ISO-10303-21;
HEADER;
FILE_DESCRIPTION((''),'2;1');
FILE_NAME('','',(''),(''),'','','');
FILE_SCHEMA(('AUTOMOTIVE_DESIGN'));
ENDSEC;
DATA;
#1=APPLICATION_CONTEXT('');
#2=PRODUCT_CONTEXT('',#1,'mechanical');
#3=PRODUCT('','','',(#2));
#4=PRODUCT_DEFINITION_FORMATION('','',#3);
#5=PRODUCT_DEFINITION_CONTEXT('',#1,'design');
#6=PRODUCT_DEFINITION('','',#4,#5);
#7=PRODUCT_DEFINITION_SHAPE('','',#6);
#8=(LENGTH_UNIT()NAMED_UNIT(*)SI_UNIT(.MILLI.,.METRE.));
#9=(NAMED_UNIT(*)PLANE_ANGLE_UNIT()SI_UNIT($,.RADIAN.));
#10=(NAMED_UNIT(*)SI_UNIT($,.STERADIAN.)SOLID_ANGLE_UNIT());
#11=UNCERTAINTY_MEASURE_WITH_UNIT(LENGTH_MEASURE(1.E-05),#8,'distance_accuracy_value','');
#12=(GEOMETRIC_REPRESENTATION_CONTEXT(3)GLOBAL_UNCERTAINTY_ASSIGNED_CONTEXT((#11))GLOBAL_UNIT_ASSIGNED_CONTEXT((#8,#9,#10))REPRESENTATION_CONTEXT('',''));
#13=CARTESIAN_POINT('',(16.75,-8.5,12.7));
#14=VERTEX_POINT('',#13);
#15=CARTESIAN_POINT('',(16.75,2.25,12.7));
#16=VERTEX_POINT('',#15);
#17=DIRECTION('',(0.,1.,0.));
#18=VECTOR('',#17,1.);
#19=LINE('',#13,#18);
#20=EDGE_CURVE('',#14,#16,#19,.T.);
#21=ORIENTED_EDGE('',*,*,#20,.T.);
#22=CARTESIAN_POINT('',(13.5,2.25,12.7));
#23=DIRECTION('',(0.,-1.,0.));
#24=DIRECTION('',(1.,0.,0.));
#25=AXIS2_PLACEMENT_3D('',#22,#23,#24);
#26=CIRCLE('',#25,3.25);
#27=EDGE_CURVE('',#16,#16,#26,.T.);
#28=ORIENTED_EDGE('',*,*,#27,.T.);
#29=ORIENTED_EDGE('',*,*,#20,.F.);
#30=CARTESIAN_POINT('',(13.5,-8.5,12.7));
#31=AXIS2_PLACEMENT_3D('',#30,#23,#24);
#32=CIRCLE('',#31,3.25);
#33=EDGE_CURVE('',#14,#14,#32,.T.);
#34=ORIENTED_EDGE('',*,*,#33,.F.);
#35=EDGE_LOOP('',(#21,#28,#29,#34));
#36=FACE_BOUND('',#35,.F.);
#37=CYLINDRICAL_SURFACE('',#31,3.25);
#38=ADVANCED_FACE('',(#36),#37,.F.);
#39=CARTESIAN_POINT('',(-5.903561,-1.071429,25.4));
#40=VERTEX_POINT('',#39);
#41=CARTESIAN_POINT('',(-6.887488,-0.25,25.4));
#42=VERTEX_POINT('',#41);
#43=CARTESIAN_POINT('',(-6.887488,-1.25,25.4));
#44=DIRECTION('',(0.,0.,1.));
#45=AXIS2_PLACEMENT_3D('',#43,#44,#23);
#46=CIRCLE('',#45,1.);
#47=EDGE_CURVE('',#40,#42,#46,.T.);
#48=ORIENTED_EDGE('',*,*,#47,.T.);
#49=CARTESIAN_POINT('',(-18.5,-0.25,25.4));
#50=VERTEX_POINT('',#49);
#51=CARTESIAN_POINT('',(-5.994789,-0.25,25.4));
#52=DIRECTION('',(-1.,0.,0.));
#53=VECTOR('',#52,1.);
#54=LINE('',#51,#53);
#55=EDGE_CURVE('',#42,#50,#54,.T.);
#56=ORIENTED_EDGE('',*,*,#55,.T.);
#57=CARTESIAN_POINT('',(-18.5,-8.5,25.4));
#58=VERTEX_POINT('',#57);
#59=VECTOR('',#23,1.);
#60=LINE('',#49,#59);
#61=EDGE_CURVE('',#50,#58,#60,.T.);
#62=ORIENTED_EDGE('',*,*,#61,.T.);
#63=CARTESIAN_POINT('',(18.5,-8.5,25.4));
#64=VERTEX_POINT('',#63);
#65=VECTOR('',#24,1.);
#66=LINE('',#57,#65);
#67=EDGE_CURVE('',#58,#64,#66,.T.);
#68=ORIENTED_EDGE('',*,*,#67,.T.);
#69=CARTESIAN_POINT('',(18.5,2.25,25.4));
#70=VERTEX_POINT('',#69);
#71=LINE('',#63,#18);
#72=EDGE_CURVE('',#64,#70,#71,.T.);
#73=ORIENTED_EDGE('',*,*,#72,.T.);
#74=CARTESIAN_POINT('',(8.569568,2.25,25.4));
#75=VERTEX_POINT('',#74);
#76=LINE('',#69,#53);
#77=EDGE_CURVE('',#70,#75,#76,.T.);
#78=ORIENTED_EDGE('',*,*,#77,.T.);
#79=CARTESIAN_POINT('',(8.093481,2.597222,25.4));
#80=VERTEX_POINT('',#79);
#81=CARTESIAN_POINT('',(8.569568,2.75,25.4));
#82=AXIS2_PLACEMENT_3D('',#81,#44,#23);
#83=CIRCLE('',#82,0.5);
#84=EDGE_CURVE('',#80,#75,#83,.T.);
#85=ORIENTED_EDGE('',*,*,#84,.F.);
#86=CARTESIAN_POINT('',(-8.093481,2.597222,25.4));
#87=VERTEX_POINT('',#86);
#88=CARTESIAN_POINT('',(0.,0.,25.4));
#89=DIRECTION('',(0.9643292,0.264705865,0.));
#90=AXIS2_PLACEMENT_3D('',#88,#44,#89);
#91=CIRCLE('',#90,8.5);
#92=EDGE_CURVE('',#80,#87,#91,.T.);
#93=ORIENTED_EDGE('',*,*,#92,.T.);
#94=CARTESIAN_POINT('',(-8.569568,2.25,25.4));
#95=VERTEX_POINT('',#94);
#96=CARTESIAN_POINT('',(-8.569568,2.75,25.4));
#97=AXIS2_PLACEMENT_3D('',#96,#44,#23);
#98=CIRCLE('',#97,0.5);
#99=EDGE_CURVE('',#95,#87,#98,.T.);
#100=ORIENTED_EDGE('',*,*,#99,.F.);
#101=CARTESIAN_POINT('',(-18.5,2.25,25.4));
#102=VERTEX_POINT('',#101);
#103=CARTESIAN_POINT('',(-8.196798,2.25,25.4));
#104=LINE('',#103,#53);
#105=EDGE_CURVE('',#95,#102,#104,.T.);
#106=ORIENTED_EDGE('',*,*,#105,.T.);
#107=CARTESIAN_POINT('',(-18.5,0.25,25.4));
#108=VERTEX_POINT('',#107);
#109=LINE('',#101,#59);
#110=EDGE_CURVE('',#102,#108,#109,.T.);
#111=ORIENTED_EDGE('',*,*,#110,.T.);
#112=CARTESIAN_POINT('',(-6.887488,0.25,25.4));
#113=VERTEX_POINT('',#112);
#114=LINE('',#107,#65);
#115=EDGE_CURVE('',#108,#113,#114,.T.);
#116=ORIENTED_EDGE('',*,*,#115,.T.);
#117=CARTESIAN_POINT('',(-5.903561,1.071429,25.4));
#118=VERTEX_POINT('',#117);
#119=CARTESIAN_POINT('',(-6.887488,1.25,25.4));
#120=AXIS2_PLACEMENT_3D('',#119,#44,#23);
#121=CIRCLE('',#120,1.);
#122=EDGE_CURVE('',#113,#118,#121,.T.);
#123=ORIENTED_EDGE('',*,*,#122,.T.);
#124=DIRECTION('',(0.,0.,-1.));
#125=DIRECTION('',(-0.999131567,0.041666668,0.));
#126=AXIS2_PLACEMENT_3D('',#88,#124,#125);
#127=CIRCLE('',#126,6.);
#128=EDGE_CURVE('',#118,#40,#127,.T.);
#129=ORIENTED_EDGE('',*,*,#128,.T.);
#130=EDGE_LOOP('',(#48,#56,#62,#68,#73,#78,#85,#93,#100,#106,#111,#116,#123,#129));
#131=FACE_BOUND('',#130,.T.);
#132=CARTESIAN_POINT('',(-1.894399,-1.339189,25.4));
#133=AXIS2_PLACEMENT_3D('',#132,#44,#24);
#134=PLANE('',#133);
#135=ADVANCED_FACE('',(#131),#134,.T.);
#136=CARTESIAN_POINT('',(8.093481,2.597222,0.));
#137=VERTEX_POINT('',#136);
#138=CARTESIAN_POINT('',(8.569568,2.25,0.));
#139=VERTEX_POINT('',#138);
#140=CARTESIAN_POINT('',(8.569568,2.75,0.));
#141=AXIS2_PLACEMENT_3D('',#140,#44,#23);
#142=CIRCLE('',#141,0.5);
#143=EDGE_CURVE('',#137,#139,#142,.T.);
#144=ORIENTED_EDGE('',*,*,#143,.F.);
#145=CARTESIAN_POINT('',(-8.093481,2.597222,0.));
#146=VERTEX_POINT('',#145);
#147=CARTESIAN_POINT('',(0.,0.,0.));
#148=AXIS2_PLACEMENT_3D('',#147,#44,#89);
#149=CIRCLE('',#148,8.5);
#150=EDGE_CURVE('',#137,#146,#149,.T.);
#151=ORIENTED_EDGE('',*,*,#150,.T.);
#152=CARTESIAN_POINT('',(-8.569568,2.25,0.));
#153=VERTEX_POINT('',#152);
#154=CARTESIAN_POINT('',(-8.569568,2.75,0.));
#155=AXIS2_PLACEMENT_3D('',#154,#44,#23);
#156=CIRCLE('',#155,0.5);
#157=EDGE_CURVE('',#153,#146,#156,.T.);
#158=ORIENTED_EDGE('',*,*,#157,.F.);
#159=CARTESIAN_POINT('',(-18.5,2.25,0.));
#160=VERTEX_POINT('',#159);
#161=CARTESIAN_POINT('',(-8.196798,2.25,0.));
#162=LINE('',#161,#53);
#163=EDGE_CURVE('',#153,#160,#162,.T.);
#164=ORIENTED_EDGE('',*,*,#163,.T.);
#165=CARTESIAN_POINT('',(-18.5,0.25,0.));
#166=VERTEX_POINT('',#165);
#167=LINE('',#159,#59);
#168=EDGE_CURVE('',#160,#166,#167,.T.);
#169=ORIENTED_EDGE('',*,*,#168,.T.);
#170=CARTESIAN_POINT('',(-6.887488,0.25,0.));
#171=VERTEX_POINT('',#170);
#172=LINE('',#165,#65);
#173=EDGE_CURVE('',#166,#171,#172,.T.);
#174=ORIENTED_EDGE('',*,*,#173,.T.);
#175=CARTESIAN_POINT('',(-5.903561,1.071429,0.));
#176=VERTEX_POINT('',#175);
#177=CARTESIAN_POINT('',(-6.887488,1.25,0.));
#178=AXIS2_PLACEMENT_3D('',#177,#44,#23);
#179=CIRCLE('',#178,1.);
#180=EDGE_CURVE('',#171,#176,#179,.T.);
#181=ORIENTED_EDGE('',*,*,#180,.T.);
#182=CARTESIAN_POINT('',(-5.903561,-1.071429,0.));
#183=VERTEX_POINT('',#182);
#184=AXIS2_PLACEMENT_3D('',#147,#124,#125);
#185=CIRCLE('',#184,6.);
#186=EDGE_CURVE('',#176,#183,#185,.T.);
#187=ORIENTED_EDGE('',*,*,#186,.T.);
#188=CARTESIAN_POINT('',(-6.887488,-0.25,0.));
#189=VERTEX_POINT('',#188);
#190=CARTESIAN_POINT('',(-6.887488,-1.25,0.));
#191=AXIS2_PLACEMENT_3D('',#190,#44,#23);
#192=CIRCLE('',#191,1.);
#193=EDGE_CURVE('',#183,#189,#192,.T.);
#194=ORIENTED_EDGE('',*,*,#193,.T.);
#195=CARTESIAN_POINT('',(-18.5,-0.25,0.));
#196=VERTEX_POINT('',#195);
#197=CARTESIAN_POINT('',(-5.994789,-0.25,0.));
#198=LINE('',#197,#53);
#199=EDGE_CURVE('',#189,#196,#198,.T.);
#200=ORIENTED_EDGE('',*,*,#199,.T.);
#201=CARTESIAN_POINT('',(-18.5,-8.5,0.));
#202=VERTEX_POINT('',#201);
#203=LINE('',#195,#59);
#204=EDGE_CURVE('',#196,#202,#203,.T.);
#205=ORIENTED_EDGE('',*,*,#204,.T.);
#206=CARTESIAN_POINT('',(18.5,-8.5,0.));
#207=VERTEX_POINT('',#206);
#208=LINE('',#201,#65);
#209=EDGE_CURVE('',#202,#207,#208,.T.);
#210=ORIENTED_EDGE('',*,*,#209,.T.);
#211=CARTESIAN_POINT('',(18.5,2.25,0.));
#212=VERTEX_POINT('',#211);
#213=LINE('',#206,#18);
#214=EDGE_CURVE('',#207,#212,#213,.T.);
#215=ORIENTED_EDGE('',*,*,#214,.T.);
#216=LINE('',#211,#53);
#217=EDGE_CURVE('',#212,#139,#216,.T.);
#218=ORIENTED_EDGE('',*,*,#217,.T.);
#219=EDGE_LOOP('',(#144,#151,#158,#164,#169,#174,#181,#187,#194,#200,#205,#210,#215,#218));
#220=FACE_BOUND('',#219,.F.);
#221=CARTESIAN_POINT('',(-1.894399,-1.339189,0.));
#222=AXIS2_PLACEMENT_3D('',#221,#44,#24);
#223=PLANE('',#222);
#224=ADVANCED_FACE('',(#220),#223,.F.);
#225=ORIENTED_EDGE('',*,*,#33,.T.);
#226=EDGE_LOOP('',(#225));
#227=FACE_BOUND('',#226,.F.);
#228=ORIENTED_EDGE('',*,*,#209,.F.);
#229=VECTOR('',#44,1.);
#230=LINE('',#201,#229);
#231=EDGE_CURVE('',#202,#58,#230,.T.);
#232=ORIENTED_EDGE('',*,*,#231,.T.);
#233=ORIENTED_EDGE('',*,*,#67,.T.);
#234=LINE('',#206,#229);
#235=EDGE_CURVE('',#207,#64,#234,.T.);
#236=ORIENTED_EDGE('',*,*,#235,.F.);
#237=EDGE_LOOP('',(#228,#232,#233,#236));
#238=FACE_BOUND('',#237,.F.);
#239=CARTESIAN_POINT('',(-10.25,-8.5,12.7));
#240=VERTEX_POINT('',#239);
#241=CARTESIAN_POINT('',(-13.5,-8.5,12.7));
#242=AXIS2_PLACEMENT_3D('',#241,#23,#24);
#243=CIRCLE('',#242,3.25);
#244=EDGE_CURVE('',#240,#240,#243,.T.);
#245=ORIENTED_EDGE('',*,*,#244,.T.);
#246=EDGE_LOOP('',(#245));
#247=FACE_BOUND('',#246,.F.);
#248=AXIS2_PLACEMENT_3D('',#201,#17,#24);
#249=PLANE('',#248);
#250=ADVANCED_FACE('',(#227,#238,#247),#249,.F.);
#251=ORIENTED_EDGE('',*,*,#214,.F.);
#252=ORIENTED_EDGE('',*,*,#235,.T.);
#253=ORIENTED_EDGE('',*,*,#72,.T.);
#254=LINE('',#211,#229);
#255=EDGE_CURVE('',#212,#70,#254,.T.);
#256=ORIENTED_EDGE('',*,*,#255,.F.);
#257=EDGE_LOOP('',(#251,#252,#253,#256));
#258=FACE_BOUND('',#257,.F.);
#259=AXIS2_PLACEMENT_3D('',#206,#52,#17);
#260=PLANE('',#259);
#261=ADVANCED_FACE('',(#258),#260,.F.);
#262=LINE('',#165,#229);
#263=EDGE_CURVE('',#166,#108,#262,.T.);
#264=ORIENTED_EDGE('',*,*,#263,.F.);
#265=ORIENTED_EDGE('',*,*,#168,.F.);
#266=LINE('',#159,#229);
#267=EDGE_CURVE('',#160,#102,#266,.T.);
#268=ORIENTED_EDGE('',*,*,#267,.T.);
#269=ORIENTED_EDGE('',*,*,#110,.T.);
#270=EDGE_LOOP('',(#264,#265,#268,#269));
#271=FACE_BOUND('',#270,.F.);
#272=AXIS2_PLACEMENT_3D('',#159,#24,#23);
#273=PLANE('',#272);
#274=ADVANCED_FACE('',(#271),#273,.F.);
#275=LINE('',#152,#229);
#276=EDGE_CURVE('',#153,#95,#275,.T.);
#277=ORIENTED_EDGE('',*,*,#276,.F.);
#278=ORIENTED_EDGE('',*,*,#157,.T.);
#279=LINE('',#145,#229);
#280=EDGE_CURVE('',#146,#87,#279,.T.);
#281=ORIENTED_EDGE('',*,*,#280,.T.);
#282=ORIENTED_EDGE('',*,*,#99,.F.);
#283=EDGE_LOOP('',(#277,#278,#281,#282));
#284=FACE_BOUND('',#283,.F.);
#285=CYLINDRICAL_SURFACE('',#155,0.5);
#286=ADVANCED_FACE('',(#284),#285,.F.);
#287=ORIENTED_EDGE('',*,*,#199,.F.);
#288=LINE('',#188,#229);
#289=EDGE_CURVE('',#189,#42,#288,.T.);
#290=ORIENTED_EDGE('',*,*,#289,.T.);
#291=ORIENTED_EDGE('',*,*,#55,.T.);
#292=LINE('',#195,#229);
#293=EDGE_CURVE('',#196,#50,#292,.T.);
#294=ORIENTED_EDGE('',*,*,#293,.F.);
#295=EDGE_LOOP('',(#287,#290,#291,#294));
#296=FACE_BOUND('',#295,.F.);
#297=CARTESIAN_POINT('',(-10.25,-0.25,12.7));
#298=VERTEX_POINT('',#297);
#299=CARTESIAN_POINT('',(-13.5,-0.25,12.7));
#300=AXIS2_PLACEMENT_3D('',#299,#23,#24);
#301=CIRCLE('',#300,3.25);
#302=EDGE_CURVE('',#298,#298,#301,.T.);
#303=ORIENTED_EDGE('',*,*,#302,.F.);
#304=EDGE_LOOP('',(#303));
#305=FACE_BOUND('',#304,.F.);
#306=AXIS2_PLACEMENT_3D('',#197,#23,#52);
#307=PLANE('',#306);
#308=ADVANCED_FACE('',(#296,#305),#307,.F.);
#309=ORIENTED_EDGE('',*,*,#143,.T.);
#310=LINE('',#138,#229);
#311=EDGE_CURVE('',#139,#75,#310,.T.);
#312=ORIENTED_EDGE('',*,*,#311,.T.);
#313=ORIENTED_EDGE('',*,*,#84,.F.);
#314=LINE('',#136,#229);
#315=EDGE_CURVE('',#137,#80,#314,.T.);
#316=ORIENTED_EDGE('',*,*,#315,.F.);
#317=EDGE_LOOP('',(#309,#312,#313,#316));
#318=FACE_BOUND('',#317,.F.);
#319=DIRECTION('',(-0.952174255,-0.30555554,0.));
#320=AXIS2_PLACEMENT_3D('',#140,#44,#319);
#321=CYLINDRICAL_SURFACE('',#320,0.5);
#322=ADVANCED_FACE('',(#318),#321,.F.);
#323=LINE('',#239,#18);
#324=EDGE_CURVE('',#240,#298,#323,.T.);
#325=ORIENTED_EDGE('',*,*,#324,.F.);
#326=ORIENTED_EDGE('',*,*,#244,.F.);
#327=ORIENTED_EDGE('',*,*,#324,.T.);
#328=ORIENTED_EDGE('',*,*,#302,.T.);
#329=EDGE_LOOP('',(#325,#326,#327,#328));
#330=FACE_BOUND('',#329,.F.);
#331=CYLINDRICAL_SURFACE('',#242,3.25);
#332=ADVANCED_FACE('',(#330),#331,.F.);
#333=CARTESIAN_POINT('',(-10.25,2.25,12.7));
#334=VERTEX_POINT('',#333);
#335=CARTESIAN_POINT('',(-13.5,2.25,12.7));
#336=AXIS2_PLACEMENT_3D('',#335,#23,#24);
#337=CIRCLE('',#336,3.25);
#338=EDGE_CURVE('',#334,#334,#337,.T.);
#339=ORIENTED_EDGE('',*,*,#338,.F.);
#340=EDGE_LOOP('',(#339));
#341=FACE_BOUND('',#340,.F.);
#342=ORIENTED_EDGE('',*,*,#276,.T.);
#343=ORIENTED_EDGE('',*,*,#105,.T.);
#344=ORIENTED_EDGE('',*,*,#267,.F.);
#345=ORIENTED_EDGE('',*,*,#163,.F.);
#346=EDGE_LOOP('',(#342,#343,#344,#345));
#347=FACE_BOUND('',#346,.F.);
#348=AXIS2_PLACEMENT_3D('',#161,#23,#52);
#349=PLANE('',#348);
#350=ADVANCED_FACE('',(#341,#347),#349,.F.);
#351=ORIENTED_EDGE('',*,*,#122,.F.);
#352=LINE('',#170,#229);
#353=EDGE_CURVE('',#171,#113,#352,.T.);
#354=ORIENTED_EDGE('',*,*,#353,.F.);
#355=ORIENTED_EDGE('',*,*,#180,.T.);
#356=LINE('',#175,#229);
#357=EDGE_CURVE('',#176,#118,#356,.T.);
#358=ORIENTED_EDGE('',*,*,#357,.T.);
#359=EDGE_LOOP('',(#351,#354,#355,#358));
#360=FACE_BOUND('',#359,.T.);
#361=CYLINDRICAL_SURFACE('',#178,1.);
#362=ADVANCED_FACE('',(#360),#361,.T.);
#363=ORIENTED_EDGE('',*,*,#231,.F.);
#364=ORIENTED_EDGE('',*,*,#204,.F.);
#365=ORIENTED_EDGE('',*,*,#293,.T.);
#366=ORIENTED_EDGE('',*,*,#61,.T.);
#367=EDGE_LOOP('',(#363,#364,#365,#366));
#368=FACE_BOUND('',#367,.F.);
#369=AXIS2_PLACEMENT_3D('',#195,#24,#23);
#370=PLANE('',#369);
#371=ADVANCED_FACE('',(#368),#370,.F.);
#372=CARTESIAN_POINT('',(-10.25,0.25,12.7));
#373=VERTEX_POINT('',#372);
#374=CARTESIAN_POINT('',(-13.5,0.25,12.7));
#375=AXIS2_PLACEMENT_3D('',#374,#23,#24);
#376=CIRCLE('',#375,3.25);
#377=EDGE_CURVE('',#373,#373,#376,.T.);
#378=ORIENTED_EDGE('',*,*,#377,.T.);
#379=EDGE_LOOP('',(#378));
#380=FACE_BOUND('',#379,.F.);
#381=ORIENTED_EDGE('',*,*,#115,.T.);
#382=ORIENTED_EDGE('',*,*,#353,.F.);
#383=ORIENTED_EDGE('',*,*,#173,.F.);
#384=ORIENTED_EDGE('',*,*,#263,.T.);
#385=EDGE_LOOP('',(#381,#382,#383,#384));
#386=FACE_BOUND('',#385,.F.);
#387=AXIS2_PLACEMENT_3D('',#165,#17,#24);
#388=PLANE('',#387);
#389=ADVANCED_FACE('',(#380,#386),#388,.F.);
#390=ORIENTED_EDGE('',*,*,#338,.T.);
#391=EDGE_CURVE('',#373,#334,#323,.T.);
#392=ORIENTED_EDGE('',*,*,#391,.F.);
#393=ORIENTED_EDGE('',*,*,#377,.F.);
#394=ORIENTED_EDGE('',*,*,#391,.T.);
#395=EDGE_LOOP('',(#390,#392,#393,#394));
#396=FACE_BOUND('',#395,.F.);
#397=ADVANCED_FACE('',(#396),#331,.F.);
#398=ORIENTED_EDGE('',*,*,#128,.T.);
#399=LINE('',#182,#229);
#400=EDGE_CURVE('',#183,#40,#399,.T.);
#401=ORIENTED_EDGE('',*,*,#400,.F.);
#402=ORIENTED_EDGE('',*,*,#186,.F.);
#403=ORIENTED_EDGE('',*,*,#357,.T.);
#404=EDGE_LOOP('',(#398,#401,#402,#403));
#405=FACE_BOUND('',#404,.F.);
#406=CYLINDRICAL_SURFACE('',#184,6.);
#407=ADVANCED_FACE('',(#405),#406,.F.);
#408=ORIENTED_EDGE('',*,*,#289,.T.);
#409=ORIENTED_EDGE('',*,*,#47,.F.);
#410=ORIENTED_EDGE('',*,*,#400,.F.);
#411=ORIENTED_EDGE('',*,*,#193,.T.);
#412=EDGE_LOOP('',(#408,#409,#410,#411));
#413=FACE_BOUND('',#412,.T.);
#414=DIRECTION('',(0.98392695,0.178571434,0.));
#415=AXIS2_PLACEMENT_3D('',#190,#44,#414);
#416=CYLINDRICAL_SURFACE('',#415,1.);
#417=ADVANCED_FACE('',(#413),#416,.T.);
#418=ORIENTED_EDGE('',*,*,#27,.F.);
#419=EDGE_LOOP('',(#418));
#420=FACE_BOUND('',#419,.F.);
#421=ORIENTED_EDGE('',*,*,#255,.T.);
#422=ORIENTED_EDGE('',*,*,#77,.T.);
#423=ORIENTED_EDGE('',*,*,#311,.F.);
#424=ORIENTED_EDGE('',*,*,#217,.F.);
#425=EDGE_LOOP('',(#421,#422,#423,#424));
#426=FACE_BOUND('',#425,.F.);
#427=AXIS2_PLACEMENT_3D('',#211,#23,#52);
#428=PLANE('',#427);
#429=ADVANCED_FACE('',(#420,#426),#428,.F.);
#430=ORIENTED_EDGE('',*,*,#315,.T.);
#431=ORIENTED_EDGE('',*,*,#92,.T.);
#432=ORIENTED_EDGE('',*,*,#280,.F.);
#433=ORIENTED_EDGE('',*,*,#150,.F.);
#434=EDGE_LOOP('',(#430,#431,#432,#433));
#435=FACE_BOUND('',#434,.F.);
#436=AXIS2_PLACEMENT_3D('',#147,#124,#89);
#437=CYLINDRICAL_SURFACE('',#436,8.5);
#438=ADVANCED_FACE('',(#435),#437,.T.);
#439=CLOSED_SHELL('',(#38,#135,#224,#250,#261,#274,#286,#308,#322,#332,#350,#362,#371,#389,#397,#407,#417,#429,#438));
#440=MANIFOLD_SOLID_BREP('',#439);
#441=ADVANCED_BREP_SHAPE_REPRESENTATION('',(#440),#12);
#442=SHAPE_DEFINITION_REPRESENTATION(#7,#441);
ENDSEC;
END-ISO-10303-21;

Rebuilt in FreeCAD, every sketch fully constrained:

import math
import FreeCAD as App
import Part
import Sketcher
from FreeCAD import Vector
Q = App.Units.Quantity


def edges_at(feature, points):
    """Names of the edges that pass closest to the given points."""
    edges = feature.Shape.Edges
    near = lambda p: min(range(len(edges)), key=lambda i: edges[i].distToShape(Part.Vertex(*p))[0])
    return sorted({f"Edge{near(p) + 1}" for p in points})

doc = App.newDocument("Part")
params = doc.addObject("Spreadsheet::Sheet", "Params")
for row, (alias, value) in enumerate([
    ("sketch1_radius", "6 mm"),
    ("sketch1_radius2", "8.5 mm"),
    ("sketch1_width", "37 mm"),
    ("sketch1_height", "2 mm"),
    ("sketch1_height2", "8.25 mm"),
    ("pad1_length", "25.4 mm"),
    ("fillet_radius", "1 mm"),
    ("fillet2_radius", "0.5 mm"),
    ("sketch2_diameter", "6.5 mm"),
], start=1):
    params.set(f"A{row}", alias)
    params.set(f"B{row}", "=" + value)
    params.setAlias(f"B{row}", alias)

body = doc.addObject("PartDesign::Body", "Body")

# Sketch on XY plane
sketch1 = body.newObject("Sketcher::SketchObject", "Sketch")
sketch1.AttachmentSupport = (doc.getObject("XY_Plane"), [""])
sketch1.MapMode = "FlatFace"
sketch1.addGeometry(Part.LineSegment(Vector(-18.5, -0.25, 0), Vector(-18.5, -8.5, 0)), False)
sketch1.addGeometry(Part.LineSegment(Vector(-18.5, -8.5, 0), Vector(18.5, -8.5, 0)), False)
sketch1.addGeometry(Part.LineSegment(Vector(18.5, -8.5, 0), Vector(18.5, 2.25, 0)), False)
sketch1.addGeometry(Part.LineSegment(Vector(18.5, 2.25, 0), Vector(8.196798, 2.25, 0)), False)
sketch1.addGeometry(Part.ArcOfCircle(Part.Circle(Vector(0, 0, 0), Vector(0, 0, 1), 8.5), math.radians(15.349476), math.radians(164.650524)), False)
sketch1.addGeometry(Part.LineSegment(Vector(-8.196798, 2.25, 0), Vector(-18.5, 2.25, 0)), False)
sketch1.addGeometry(Part.LineSegment(Vector(-18.5, 2.25, 0), Vector(-18.5, 0.25, 0)), False)
sketch1.addGeometry(Part.LineSegment(Vector(-18.5, 0.25, 0), Vector(-5.994789, 0.25, 0)), False)
sketch1.addGeometry(Part.ArcOfCircle(Part.Circle(Vector(0, 0, 0), Vector(0, 0, 1), 6), math.radians(-177.611984), math.radians(177.611984)), False)
sketch1.addGeometry(Part.LineSegment(Vector(-5.994789, -0.25, 0), Vector(-18.5, -0.25, 0)), False)
sketch1.addConstraint(Sketcher.Constraint("Coincident", 0, 2, 1, 1))
sketch1.addConstraint(Sketcher.Constraint("Coincident", 1, 2, 2, 1))
sketch1.addConstraint(Sketcher.Constraint("Coincident", 2, 2, 3, 1))
sketch1.addConstraint(Sketcher.Constraint("Coincident", 3, 2, 4, 1))
sketch1.addConstraint(Sketcher.Constraint("Coincident", 4, 2, 5, 1))
sketch1.addConstraint(Sketcher.Constraint("Coincident", 5, 2, 6, 1))
sketch1.addConstraint(Sketcher.Constraint("Coincident", 6, 2, 7, 1))
sketch1.addConstraint(Sketcher.Constraint("Coincident", 7, 2, 8, 2))
sketch1.addConstraint(Sketcher.Constraint("Coincident", 8, 1, 9, 1))
sketch1.addConstraint(Sketcher.Constraint("Coincident", 9, 2, 0, 1))
sketch1.addConstraint(Sketcher.Constraint("Vertical", 0))
sketch1.addConstraint(Sketcher.Constraint("Horizontal", 1))
sketch1.addConstraint(Sketcher.Constraint("Vertical", 2))
sketch1.addConstraint(Sketcher.Constraint("Horizontal", 3))
sketch1.addConstraint(Sketcher.Constraint("Horizontal", 5))
sketch1.addConstraint(Sketcher.Constraint("Vertical", 6))
sketch1.addConstraint(Sketcher.Constraint("Horizontal", 7))
sketch1.addConstraint(Sketcher.Constraint("Horizontal", 9))
sketch1.addConstraint(Sketcher.Constraint("Coincident", 4, 3, -1, 1))
sketch1.addConstraint(Sketcher.Constraint("Coincident", 8, 3, -1, 1))
sketch1.addConstraint(Sketcher.Constraint("Symmetric", 2, 2, 5, 2, -2))
sketch1.addConstraint(Sketcher.Constraint("Symmetric", 6, 2, 9, 2, -1))
sketch1.addConstraint(Sketcher.Constraint("Radius", 8, Q("6 mm")))
sketch1.addConstraint(Sketcher.Constraint("Radius", 4, Q("8.5 mm")))
sketch1.addConstraint(Sketcher.Constraint("DistanceX", 1, 1, 1, 2, Q("37 mm")))
sketch1.addConstraint(Sketcher.Constraint("DistanceY", 6, 2, 6, 1, Q("2 mm")))
sketch1.addConstraint(Sketcher.Constraint("DistanceY", 0, 2, 0, 1, Q("8.25 mm")))
sketch1.addConstraint(Sketcher.Constraint("DistanceY", 2, 1, 2, 2, Q("10.75 mm")))
sketch1.setExpression("Constraints[22]", "Params.sketch1_radius")
sketch1.setExpression("Constraints[23]", "Params.sketch1_radius2")
sketch1.setExpression("Constraints[24]", "Params.sketch1_width")
sketch1.setExpression("Constraints[25]", "Params.sketch1_height")
sketch1.setExpression("Constraints[26]", "Params.sketch1_height2")
pad1 = body.newObject("PartDesign::Pad", "Pad")
pad1.Profile = sketch1
pad1.setExpression("Length", "Params.pad1_length")
doc.recompute()

fillet = body.newObject("PartDesign::Fillet", "Fillet")
fillet.Base = (pad1, edges_at(pad1, [(-5.995, 0.25, 12.7), (-5.995, -0.25, 12.7)]))
fillet.setExpression("Radius", "Params.fillet_radius")
doc.recompute()

fillet2 = body.newObject("PartDesign::Fillet", "Fillet001")
fillet2.Base = (fillet, edges_at(fillet, [(-8.197, 2.25, 12.7), (8.197, 2.25, 12.7)]))
fillet2.setExpression("Radius", "Params.fillet2_radius")

# Sketch on XZ plane
sketch2 = body.newObject("Sketcher::SketchObject", "Sketch001")
sketch2.AttachmentSupport = (doc.getObject("XZ_Plane"), [""])
sketch2.MapMode = "FlatFace"
sketch2.AttachmentOffset = App.Placement(Vector(0, 0, 8.5), App.Rotation())
sketch2.addGeometry(Part.Circle(Vector(-13.5, 12.7, 0), Vector(0, 0, 1), 3.25), False)
sketch2.addGeometry(Part.Circle(Vector(13.5, 12.7, 0), Vector(0, 0, 1), 3.25), False)
sketch2.addConstraint(Sketcher.Constraint("Equal", 0, 1))
sketch2.addConstraint(Sketcher.Constraint("Symmetric", 0, 3, 1, 3, -2))
sketch2.addConstraint(Sketcher.Constraint("Diameter", 0, Q("6.5 mm")))
sketch2.addConstraint(Sketcher.Constraint("DistanceX", 0, 3, 1, 3, Q("27 mm")))
sketch2.addConstraint(Sketcher.Constraint("DistanceY", -1, 1, 0, 3, Q("12.7 mm")))
sketch2.setExpression("Constraints[2]", "Params.sketch2_diameter")
pocket1 = body.newObject("PartDesign::Pocket", "Pocket")
pocket1.Profile = sketch2
pocket1.Type = "ThroughAll"

doc.recompute()
